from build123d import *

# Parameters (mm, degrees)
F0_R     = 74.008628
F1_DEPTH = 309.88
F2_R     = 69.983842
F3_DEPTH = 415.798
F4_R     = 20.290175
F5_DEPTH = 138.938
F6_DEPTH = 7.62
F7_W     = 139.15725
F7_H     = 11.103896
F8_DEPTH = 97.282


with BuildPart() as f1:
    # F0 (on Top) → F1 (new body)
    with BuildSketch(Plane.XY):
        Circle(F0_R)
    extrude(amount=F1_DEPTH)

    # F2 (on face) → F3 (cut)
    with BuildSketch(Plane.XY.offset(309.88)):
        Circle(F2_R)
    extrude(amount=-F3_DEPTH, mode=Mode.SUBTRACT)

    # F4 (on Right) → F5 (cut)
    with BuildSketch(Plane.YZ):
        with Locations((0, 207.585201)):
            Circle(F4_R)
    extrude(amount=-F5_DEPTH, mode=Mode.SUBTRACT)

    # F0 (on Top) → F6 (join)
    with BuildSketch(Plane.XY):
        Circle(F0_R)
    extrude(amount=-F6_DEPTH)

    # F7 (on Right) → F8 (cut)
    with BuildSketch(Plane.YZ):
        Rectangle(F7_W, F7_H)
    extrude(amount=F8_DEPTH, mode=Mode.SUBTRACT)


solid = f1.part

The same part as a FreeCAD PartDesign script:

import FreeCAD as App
import Part
import Sketcher

V = App.Vector
Q = App.Units.Quantity


def add_polygon(sketch, points):
    """Adds a closed chain of lines whose ends are joined by coincident constraints."""
    first, n = sketch.GeometryCount, len(points)
    for a, b in zip(points, points[1:] + points[:1]):
        sketch.addGeometry(Part.LineSegment(App.Vector(*a, 0), App.Vector(*b, 0)), False)
    for i in range(n):
        sketch.addConstraint(Sketcher.Constraint("Coincident", first + i, 2, first + (i + 1) % n, 1))

doc = App.newDocument("Part")
body = doc.addObject("PartDesign::Body", "Body")

# Sketch on XY plane
sketch1 = body.newObject("Sketcher::SketchObject", "Sketch")
sketch1.AttachmentSupport = (doc.getObject("XY_Plane"), [""])
sketch1.MapMode = "FlatFace"
sketch1.addGeometry(Part.Circle(V(0, 0, 0), V(0, 0, 1), 74), False)
sketch1.addConstraint(Sketcher.Constraint("Coincident", 0, 3, -1, 1))
sketch1.addConstraint(Sketcher.Constraint("Diameter", 0, Q("148.017256 mm")))
pad1 = body.newObject("PartDesign::Pad", "Pad")
pad1.Profile = sketch1
pad1.Length = Q("12.2 in")

# Sketch on XY plane
sketch2 = body.newObject("Sketcher::SketchObject", "Sketch001")
sketch2.AttachmentSupport = (doc.getObject("XY_Plane"), [""])
sketch2.MapMode = "FlatFace"
sketch2.AttachmentOffset = App.Placement(V(0, 0, 12.2 * 25.4), App.Rotation())
sketch2.addGeometry(Part.Circle(V(0, 0, 0), V(0, 0, 1), 70), False)
sketch2.addConstraint(Sketcher.Constraint("Coincident", 0, 3, -1, 1))
sketch2.addConstraint(Sketcher.Constraint("Diameter", 0, Q("139.967684 mm")))
pocket1 = body.newObject("PartDesign::Pocket", "Pocket")
pocket1.Profile = sketch2
pocket1.Length = Q("16.37 in")

# Sketch on YZ plane
sketch3 = body.newObject("Sketcher::SketchObject", "Sketch002")
sketch3.AttachmentSupport = (doc.getObject("YZ_Plane"), [""])
sketch3.MapMode = "FlatFace"
sketch3.addGeometry(Part.Circle(V(0, 208, 0), V(0, 0, 1), 20), False)
sketch3.addConstraint(Sketcher.Constraint("PointOnObject", 0, 3, -2))
sketch3.addConstraint(Sketcher.Constraint("Diameter", 0, Q("40.58035 mm")))
sketch3.addConstraint(Sketcher.Constraint("DistanceY", -1, 1, 0, 3, Q("207.585201 mm")))
pocket2 = body.newObject("PartDesign::Pocket", "Pocket001")
pocket2.Profile = sketch3
pocket2.Length = Q("5.47 in")

# Sketch on XY plane
sketch4 = body.newObject("Sketcher::SketchObject", "Sketch003")
sketch4.AttachmentSupport = (doc.getObject("XY_Plane"), [""])
sketch4.MapMode = "FlatFace"
sketch4.addGeometry(Part.Circle(V(0, 0, 0), V(0, 0, 1), 74), False)
sketch4.addConstraint(Sketcher.Constraint("Coincident", 0, 3, -1, 1))
sketch4.addConstraint(Sketcher.Constraint("Diameter", 0, Q("148.017256 mm")))
pad2 = body.newObject("PartDesign::Pad", "Pad001")
pad2.Profile = sketch4
pad2.Length = Q("0.3 in")
pad2.Reversed = True

# Sketch on YZ plane
sketch5 = body.newObject("Sketcher::SketchObject", "Sketch004")
sketch5.AttachmentSupport = (doc.getObject("YZ_Plane"), [""])
sketch5.MapMode = "FlatFace"
add_polygon(sketch5, [(-70, 6), (-70, -6), (70, -6), (70, 6)])  # lines 0-3
sketch5.addConstraint(Sketcher.Constraint("Vertical", 0))
sketch5.addConstraint(Sketcher.Constraint("Horizontal", 1))
sketch5.addConstraint(Sketcher.Constraint("Vertical", 2))
sketch5.addConstraint(Sketcher.Constraint("Horizontal", 3))
sketch5.addConstraint(Sketcher.Constraint("Symmetric", 0, 2, 2, 2, -1, 1))
sketch5.addConstraint(Sketcher.Constraint("DistanceX", 1, 1, 1, 2, Q("139.15725 mm")))
sketch5.addConstraint(Sketcher.Constraint("DistanceY", 0, 2, 0, 1, Q("11.103896 mm")))
pocket3 = body.newObject("PartDesign::Pocket", "Pocket002")
pocket3.Profile = sketch5
pocket3.Length = Q("3.83 in")
pocket3.Reversed = True

doc.recompute()
